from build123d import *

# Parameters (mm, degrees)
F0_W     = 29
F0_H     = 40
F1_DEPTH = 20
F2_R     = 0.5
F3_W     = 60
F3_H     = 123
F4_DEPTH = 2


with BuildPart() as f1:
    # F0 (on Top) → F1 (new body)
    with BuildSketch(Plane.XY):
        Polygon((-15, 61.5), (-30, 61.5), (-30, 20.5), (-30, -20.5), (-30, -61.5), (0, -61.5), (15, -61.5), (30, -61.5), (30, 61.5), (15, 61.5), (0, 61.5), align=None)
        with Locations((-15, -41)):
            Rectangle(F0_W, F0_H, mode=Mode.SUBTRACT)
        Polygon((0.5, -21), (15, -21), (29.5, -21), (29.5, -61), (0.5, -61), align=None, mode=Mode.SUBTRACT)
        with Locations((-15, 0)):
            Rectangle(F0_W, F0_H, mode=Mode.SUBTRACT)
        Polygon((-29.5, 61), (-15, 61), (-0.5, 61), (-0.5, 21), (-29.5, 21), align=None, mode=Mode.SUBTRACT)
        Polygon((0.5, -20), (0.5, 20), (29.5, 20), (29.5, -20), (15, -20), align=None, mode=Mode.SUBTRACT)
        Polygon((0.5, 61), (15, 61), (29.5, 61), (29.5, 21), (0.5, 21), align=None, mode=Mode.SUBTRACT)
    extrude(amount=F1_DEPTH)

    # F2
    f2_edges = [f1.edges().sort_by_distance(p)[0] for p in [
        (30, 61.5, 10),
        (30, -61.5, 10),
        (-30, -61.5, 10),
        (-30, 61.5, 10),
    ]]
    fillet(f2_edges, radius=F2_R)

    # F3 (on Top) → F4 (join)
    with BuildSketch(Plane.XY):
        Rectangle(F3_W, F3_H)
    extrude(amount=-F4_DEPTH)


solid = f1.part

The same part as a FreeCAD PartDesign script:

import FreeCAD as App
import Part
import Sketcher
from FreeCAD import Vector


def edges_at(feature, points):
    """Names of the edges that pass closest to the given points."""
    edges = feature.Shape.Edges
    near = lambda p: min(range(len(edges)), key=lambda i: edges[i].distToShape(Part.Vertex(*p))[0])
    return sorted({f"Edge{near(p) + 1}" for p in points})

doc = App.newDocument("Part")
body = doc.addObject("PartDesign::Body", "Body")

sketch1 = body.newObject("Sketcher::SketchObject", "Sketch")
sketch1.AttachmentSupport = (doc.getObject("XY_Plane"), [""])
sketch1.MapMode = "FlatFace"
sketch1.addGeometry([
    Part.LineSegment(Vector(-30, 61.5, 0), Vector(-30, -61.5, 0)),
    Part.LineSegment(Vector(-30, -61.5, 0), Vector(30, -61.5, 0)),
    Part.LineSegment(Vector(30, -61.5, 0), Vector(30, 61.5, 0)),
    Part.LineSegment(Vector(30, 61.5, 0), Vector(-30, 61.5, 0)),
    Part.LineSegment(Vector(-0.5, -61, 0), Vector(-29.5, -61, 0)),
    Part.LineSegment(Vector(-29.5, -61, 0), Vector(-29.5, -21, 0)),
    Part.LineSegment(Vector(-29.5, -21, 0), Vector(-0.5, -21, 0)),
    Part.LineSegment(Vector(-0.5, -21, 0), Vector(-0.5, -61, 0)),
    Part.LineSegment(Vector(0.5, -61, 0), Vector(0.5, -21, 0)),
    Part.LineSegment(Vector(0.5, -21, 0), Vector(29.5, -21, 0)),
    Part.LineSegment(Vector(29.5, -21, 0), Vector(29.5, -61, 0)),
    Part.LineSegment(Vector(29.5, -61, 0), Vector(0.5, -61, 0)),
    Part.LineSegment(Vector(-0.5, -20, 0), Vector(-29.5, -20, 0)),
    Part.LineSegment(Vector(-29.5, -20, 0), Vector(-29.5, 20, 0)),
    Part.LineSegment(Vector(-29.5, 20, 0), Vector(-0.5, 20, 0)),
    Part.LineSegment(Vector(-0.5, 20, 0), Vector(-0.5, -20, 0)),
    Part.LineSegment(Vector(-29.5, 21, 0), Vector(-29.5, 61, 0)),
    Part.LineSegment(Vector(-29.5, 61, 0), Vector(-0.5, 61, 0)),
    Part.LineSegment(Vector(-0.5, 61, 0), Vector(-0.5, 21, 0)),
    Part.LineSegment(Vector(-0.5, 21, 0), Vector(-29.5, 21, 0)),
    Part.LineSegment(Vector(29.5, -20, 0), Vector(0.5, -20, 0)),
    Part.LineSegment(Vector(0.5, -20, 0), Vector(0.5, 20, 0)),
    Part.LineSegment(Vector(0.5, 20, 0), Vector(29.5, 20, 0)),
    Part.LineSegment(Vector(29.5, 20, 0), Vector(29.5, -20, 0)),
    Part.LineSegment(Vector(0.5, 21, 0), Vector(0.5, 61, 0)),
    Part.LineSegment(Vector(0.5, 61, 0), Vector(29.5, 61, 0)),
    Part.LineSegment(Vector(29.5, 61, 0), Vector(29.5, 21, 0)),
    Part.LineSegment(Vector(29.5, 21, 0), Vector(0.5, 21, 0)),
], False)
sketch1.addConstraint([
    Sketcher.Constraint("Coincident", 0, 2, 1, 1),
    Sketcher.Constraint("Coincident", 1, 2, 2, 1),
    Sketcher.Constraint("Coincident", 2, 2, 3, 1),
    Sketcher.Constraint("Coincident", 3, 2, 0, 1),
    Sketcher.Constraint("Coincident", 4, 2, 5, 1),
    Sketcher.Constraint("Coincident", 5, 2, 6, 1),
    Sketcher.Constraint("Coincident", 6, 2, 7, 1),
    Sketcher.Constraint("Coincident", 7, 2, 4, 1),
    Sketcher.Constraint("Coincident", 8, 2, 9, 1),
    Sketcher.Constraint("Coincident", 9, 2, 10, 1),
    Sketcher.Constraint("Coincident", 10, 2, 11, 1),
    Sketcher.Constraint("Coincident", 11, 2, 8, 1),
    Sketcher.Constraint("Coincident", 12, 2, 13, 1),
    Sketcher.Constraint("Coincident", 13, 2, 14, 1),
    Sketcher.Constraint("Coincident", 14, 2, 15, 1),
    Sketcher.Constraint("Coincident", 15, 2, 12, 1),
    Sketcher.Constraint("Coincident", 16, 2, 17, 1),
    Sketcher.Constraint("Coincident", 17, 2, 18, 1),
    Sketcher.Constraint("Coincident", 18, 2, 19, 1),
    Sketcher.Constraint("Coincident", 19, 2, 16, 1),
    Sketcher.Constraint("Coincident", 20, 2, 21, 1),
    Sketcher.Constraint("Coincident", 21, 2, 22, 1),
    Sketcher.Constraint("Coincident", 22, 2, 23, 1),
    Sketcher.Constraint("Coincident", 23, 2, 20, 1),
    Sketcher.Constraint("Coincident", 24, 2, 25, 1),
    Sketcher.Constraint("Coincident", 25, 2, 26, 1),
    Sketcher.Constraint("Coincident", 26, 2, 27, 1),
    Sketcher.Constraint("Coincident", 27, 2, 24, 1),
    Sketcher.Constraint("Vertical", 0),
    Sketcher.Constraint("Horizontal", 1),
    Sketcher.Constraint("Vertical", 2),
    Sketcher.Constraint("Horizontal", 3),
    Sketcher.Constraint("Horizontal", 4),
    Sketcher.Constraint("Vertical", 5),
    Sketcher.Constraint("Horizontal", 6),
    Sketcher.Constraint("Vertical", 7),
    Sketcher.Constraint("Vertical", 8),
    Sketcher.Constraint("Horizontal", 9),
    Sketcher.Constraint("Vertical", 10),
    Sketcher.Constraint("Horizontal", 11),
    Sketcher.Constraint("Horizontal", 12),
    Sketcher.Constraint("Vertical", 13),
    Sketcher.Constraint("Horizontal", 14),
    Sketcher.Constraint("Vertical", 15),
    Sketcher.Constraint("Vertical", 16),
    Sketcher.Constraint("Horizontal", 17),
    Sketcher.Constraint("Vertical", 18),
    Sketcher.Constraint("Horizontal", 19),
    Sketcher.Constraint("Horizontal", 20),
    Sketcher.Constraint("Vertical", 21),
    Sketcher.Constraint("Horizontal", 22),
    Sketcher.Constraint("Vertical", 23),
    Sketcher.Constraint("Vertical", 24),
    Sketcher.Constraint("Horizontal", 25),
    Sketcher.Constraint("Vertical", 26),
    Sketcher.Constraint("Horizontal", 27),
    Sketcher.Constraint("Symmetric", 0, 2, 2, 2, -1, 1),
    Sketcher.Constraint("Symmetric", 10, 2, 16, 2, -1, 1),
    Sketcher.Constraint("Symmetric", 8, 2, 18, 2, -1, 1),
    Sketcher.Constraint("Symmetric", 14, 2, 20, 2, -1, 1),
    Sketcher.Constraint("Symmetric", 12, 2, 22, 2, -1, 1),
    Sketcher.Constraint("Symmetric", 7, 2, 24, 2, -1, 1),
    Sketcher.Constraint("Symmetric", 5, 2, 26, 2, -1, 1),
    Sketcher.Constraint("Symmetric", 6, 2, 8, 2, -2),
    Sketcher.Constraint("Symmetric", 4, 2, 10, 2, -2),
    Sketcher.Constraint("Horizontal", 15, 2, 20, 2),
    Sketcher.Constraint("Vertical", 5, 2, 12, 2),
    Sketcher.Constraint("Vertical", 7, 2, 14, 2),
    Sketcher.Constraint("Equal", 10, 13),
    Sketcher.Constraint("DistanceX", 1, 1, 1, 2, 60.0),
    Sketcher.Constraint("DistanceX", 4, 2, 4, 1, 29.0),
    Sketcher.Constraint("DistanceY", 0, 2, 0, 1, 123.0),
    Sketcher.Constraint("DistanceY", 5, 1, 5, 2, 40.0),
    Sketcher.Constraint("DistanceY", 4, 2, -1, 1, 61.0),
    Sketcher.Constraint("DistanceX", 6, 2, 8, 2, 1.0),
])
pad1 = body.newObject("PartDesign::Pad", "Pad")
pad1.Profile = sketch1
pad1.Length = 20
doc.recompute()

fillet = body.newObject("PartDesign::Fillet", "Fillet")
fillet.Base = (pad1, edges_at(pad1, [
    (30, 61.5, 10),
    (30, -61.5, 10),
    (-30, -61.5, 10),
    (-30, 61.5, 10),
]))
fillet.Radius = 0.5

sketch2 = body.newObject("Sketcher::SketchObject", "Sketch001")
sketch2.AttachmentSupport = (doc.getObject("XY_Plane"), [""])
sketch2.MapMode = "FlatFace"
sketch2.addGeometry([
    Part.LineSegment(Vector(-30, 62, 0), Vector(-30, -62, 0)),
    Part.LineSegment(Vector(-30, -62, 0), Vector(30, -62, 0)),
    Part.LineSegment(Vector(30, -62, 0), Vector(30, 62, 0)),
    Part.LineSegment(Vector(30, 62, 0), Vector(-30, 62, 0)),
], False)
sketch2.addConstraint([
    Sketcher.Constraint("Coincident", 0, 2, 1, 1),
    Sketcher.Constraint("Coincident", 1, 2, 2, 1),
    Sketcher.Constraint("Coincident", 2, 2, 3, 1),
    Sketcher.Constraint("Coincident", 3, 2, 0, 1),
    Sketcher.Constraint("Vertical", 0),
    Sketcher.Constraint("Horizontal", 1),
    Sketcher.Constraint("Vertical", 2),
    Sketcher.Constraint("Horizontal", 3),
    Sketcher.Constraint("Symmetric", 0, 2, 2, 2, -1, 1),
    Sketcher.Constraint("DistanceX", 1, 1, 1, 2, 60.0),
    Sketcher.Constraint("DistanceY", 0, 2, 0, 1, 123.0),
])
pad2 = body.newObject("PartDesign::Pad", "Pad001")
pad2.Profile = sketch2
pad2.Length = 2
pad2.Reversed = True

doc.recompute()
